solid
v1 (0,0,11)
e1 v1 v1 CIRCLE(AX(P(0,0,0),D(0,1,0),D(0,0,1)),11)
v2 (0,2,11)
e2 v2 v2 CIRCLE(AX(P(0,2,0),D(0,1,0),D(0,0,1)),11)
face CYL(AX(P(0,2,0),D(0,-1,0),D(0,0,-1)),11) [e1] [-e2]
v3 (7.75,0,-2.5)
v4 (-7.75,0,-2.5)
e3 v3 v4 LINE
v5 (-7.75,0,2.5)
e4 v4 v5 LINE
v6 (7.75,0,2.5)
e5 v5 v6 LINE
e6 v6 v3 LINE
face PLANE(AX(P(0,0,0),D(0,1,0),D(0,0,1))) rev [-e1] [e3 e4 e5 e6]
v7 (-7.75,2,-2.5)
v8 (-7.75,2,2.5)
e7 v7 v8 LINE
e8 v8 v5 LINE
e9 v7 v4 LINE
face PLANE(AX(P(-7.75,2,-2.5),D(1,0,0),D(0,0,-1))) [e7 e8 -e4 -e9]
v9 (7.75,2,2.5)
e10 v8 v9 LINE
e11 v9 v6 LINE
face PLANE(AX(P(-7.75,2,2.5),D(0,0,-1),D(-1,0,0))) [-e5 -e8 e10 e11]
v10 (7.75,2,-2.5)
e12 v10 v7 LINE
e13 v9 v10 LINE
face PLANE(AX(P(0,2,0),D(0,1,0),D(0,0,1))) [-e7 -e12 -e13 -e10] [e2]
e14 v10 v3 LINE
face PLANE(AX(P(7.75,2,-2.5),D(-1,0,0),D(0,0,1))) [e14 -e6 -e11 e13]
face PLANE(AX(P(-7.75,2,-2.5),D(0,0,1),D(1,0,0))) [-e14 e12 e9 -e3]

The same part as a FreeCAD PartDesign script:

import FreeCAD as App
import Part
import Sketcher

V = App.Vector


def add_polygon(sketch, points):
    """Adds a closed chain of lines whose ends are joined by coincident constraints."""
    first, n = sketch.GeometryCount, len(points)
    for a, b in zip(points, points[1:] + points[:1]):
        sketch.addGeometry(Part.LineSegment(App.Vector(*a, 0), App.Vector(*b, 0)), False)
    for i in range(n):
        sketch.addConstraint(Sketcher.Constraint("Coincident", first + i, 2, first + (i + 1) % n, 1))

doc = App.newDocument("Part")
body = doc.addObject("PartDesign::Body", "Body")

sketch1 = body.newObject("Sketcher::SketchObject", "Sketch")
sketch1.AttachmentSupport = (doc.getObject("XZ_Plane"), [""])
sketch1.MapMode = "FlatFace"
sketch1.addGeometry(Part.Circle(V(0, 0, 0), V(0, 0, 1), 11), False)
add_polygon(sketch1, [(8, 2), (-8, 2), (-8, -2), (8, -2)])
sketch1.addConstraint(Sketcher.Constraint("Horizontal", 1))
sketch1.addConstraint(Sketcher.Constraint("Vertical", 2))
sketch1.addConstraint(Sketcher.Constraint("Horizontal", 3))
sketch1.addConstraint(Sketcher.Constraint("Vertical", 4))
sketch1.addConstraint(Sketcher.Constraint("Coincident", 0, 3, -1, 1))
sketch1.addConstraint(Sketcher.Constraint("Symmetric", 1, 2, 3, 2, -1, 1))
sketch1.addConstraint(Sketcher.Constraint("Diameter", 0, 22.0))
sketch1.addConstraint(Sketcher.Constraint("DistanceY", 2, 2, 2, 1, 5.0))
sketch1.addConstraint(Sketcher.Constraint("DistanceX", 1, 2, 1, 1, 15.5))
pad1 = body.newObject("PartDesign::Pad", "Pad")
pad1.Profile = sketch1
pad1.Length = 2
pad1.Reversed = True

doc.recompute()
